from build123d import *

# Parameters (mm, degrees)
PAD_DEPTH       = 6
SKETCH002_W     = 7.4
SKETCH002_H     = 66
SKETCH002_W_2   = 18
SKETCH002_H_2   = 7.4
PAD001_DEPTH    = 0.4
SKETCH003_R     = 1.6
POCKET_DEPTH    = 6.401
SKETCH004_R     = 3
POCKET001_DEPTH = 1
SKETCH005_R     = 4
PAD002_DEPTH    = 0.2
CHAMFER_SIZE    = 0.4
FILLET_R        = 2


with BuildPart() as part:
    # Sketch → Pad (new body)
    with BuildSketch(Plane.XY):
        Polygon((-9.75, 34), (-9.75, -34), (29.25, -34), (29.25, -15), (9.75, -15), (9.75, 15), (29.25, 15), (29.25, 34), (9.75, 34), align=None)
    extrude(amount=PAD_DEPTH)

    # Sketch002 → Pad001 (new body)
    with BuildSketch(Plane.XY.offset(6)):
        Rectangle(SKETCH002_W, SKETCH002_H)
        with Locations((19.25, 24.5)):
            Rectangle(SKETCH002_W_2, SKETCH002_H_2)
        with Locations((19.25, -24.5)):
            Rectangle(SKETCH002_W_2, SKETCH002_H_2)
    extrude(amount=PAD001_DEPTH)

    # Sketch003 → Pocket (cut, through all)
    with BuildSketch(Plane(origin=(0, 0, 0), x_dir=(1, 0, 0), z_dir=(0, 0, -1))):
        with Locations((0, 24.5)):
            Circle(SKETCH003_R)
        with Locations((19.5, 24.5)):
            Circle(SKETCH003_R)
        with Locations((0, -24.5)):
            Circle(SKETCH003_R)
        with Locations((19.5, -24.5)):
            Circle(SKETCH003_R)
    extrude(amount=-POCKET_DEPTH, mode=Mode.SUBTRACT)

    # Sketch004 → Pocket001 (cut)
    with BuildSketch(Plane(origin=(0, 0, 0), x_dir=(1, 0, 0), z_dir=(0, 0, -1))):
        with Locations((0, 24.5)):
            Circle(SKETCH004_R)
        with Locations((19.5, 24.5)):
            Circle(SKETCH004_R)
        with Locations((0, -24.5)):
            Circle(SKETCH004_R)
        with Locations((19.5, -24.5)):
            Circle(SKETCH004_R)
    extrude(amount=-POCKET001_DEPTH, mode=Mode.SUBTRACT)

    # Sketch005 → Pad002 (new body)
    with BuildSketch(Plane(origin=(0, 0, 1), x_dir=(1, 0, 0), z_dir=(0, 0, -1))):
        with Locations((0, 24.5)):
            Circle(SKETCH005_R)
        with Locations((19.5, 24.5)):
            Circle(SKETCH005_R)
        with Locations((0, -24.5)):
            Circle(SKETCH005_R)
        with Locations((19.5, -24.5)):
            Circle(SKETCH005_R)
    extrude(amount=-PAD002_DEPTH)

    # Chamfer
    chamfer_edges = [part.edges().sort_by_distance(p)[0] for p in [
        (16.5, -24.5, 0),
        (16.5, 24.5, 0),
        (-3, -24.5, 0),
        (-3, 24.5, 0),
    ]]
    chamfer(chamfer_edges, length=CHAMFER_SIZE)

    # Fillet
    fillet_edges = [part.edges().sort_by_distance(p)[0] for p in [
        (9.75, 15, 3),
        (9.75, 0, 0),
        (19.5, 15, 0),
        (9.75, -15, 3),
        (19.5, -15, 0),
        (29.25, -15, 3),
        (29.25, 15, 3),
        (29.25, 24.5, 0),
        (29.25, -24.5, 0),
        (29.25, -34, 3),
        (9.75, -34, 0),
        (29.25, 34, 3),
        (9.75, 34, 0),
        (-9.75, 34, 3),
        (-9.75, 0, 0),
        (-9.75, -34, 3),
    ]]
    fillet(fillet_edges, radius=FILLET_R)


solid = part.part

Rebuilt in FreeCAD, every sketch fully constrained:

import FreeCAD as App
import Part
import Sketcher
from FreeCAD import Vector
Q = App.Units.Quantity


def edges_at(feature, points):
    """Names of the edges that pass closest to the given points."""
    edges = feature.Shape.Edges
    near = lambda p: min(range(len(edges)), key=lambda i: edges[i].distToShape(Part.Vertex(*p))[0])
    return sorted({f"Edge{near(p) + 1}" for p in points})


def add_polygon(sketch, points):
    """Adds a closed chain of lines whose ends are joined by coincident constraints."""
    first, n = sketch.GeometryCount, len(points)
    for a, b in zip(points, points[1:] + points[:1]):
        sketch.addGeometry(Part.LineSegment(App.Vector(*a, 0), App.Vector(*b, 0)), False)
    for i in range(n):
        sketch.addConstraint(Sketcher.Constraint("Coincident", first + i, 2, first + (i + 1) % n, 1))

doc = App.newDocument("Part")
body = doc.addObject("PartDesign::Body", "Body")

# Sketch on XY plane
sketch1 = body.newObject("Sketcher::SketchObject", "Sketch")
sketch1.AttachmentSupport = (doc.getObject("XY_Plane"), [""])
sketch1.MapMode = "FlatFace"
add_polygon(sketch1, [(-10, 34), (-10, -34), (29, -34), (29, -15), (10, -15), (10, 15), (29, 15), (29, 34)])  # lines 0-7
sketch1.addConstraint(Sketcher.Constraint("Vertical", 0))
sketch1.addConstraint(Sketcher.Constraint("Horizontal", 1))
sketch1.addConstraint(Sketcher.Constraint("Vertical", 2))
sketch1.addConstraint(Sketcher.Constraint("Horizontal", 3))
sketch1.addConstraint(Sketcher.Constraint("Vertical", 4))
sketch1.addConstraint(Sketcher.Constraint("Horizontal", 5))
sketch1.addConstraint(Sketcher.Constraint("Vertical", 6))
sketch1.addConstraint(Sketcher.Constraint("Horizontal", 7))
sketch1.addConstraint(Sketcher.Constraint("Symmetric", 2, 2, 5, 2, -1))
sketch1.addConstraint(Sketcher.Constraint("Equal", 2, 6))
sketch1.addConstraint(Sketcher.Constraint("DistanceX", 1, 1, 1, 2, Q("39 mm")))
sketch1.addConstraint(Sketcher.Constraint("DistanceY", 0, 2, 0, 1, Q("68 mm")))
sketch1.addConstraint(Sketcher.Constraint("DistanceY", 2, 1, 2, 2, Q("19 mm")))
sketch1.addConstraint(Sketcher.Constraint("DistanceX", 3, 2, 3, 1, Q("19.5 mm")))
sketch1.addConstraint(Sketcher.Constraint("DistanceX", 0, 2, -1, 1, Q("9.75 mm")))
pad1 = body.newObject("PartDesign::Pad", "Pad")
pad1.Profile = sketch1
pad1.Length = 6

# Sketch on XY plane
sketch2 = body.newObject("Sketcher::SketchObject", "Sketch001")
sketch2.AttachmentSupport = (doc.getObject("XY_Plane"), [""])
sketch2.MapMode = "FlatFace"
sketch2.AttachmentOffset = App.Placement(Vector(0, 0, 6), App.Rotation())
add_polygon(sketch2, [(-4, 33), (-4, -33), (4, -33), (4, 33)])  # lines 0-3
add_polygon(sketch2, [(10, 28), (10, 21), (28, 21), (28, 28)])  # lines 4-7
add_polygon(sketch2, [(10, -21), (10, -28), (28, -28), (28, -21)])  # lines 8-11
sketch2.addConstraint(Sketcher.Constraint("Vertical", 0))
sketch2.addConstraint(Sketcher.Constraint("Horizontal", 1))
sketch2.addConstraint(Sketcher.Constraint("Vertical", 2))
sketch2.addConstraint(Sketcher.Constraint("Horizontal", 3))
sketch2.addConstraint(Sketcher.Constraint("Vertical", 4))
sketch2.addConstraint(Sketcher.Constraint("Horizontal", 5))
sketch2.addConstraint(Sketcher.Constraint("Vertical", 6))
sketch2.addConstraint(Sketcher.Constraint("Horizontal", 7))
sketch2.addConstraint(Sketcher.Constraint("Vertical", 8))
sketch2.addConstraint(Sketcher.Constraint("Horizontal", 9))
sketch2.addConstraint(Sketcher.Constraint("Vertical", 10))
sketch2.addConstraint(Sketcher.Constraint("Horizontal", 11))
sketch2.addConstraint(Sketcher.Constraint("Symmetric", 0, 2, 2, 2, -1, 1))
sketch2.addConstraint(Sketcher.Constraint("Symmetric", 7, 2, 8, 2, -1))
sketch2.addConstraint(Sketcher.Constraint("Symmetric", 5, 2, 10, 2, -1))
sketch2.addConstraint(Sketcher.Constraint("Equal", 3, 4))
sketch2.addConstraint(Sketcher.Constraint("DistanceX", 5, 1, 5, 2, Q("18 mm")))
sketch2.addConstraint(Sketcher.Constraint("DistanceY", 0, 2, 0, 1, Q("66 mm")))
sketch2.addConstraint(Sketcher.Constraint("DistanceX", 1, 1, 1, 2, Q("7.4 mm")))
sketch2.addConstraint(Sketcher.Constraint("DistanceY", 8, 2, 4, 2, Q("49 mm")))
sketch2.addConstraint(Sketcher.Constraint("DistanceX", -1, 1, 4, 2, Q("10.25 mm")))
pad2 = body.newObject("PartDesign::Pad", "Pad001")
pad2.Profile = sketch2
pad2.Length = 0.4

# Sketch on XY plane
sketch3 = body.newObject("Sketcher::SketchObject", "Sketch002")
sketch3.AttachmentSupport = (doc.getObject("XY_Plane"), [""])
sketch3.MapMode = "FlatFace"
sketch3.addGeometry(Part.Circle(Vector(0, -24.5, 0), Vector(0, 0, 1), 1.6), False)
sketch3.addGeometry(Part.Circle(Vector(19.5, -24.5, 0), Vector(0, 0, 1), 1.6), False)
sketch3.addGeometry(Part.Circle(Vector(0, 24.5, 0), Vector(0, 0, 1), 1.6), False)
sketch3.addGeometry(Part.Circle(Vector(19.5, 24.5, 0), Vector(0, 0, 1), 1.6), False)
sketch3.addConstraint(Sketcher.Constraint("Equal", 0, 1))
sketch3.addConstraint(Sketcher.Constraint("Equal", 1, 2))
sketch3.addConstraint(Sketcher.Constraint("Equal", 2, 3))
sketch3.addConstraint(Sketcher.Constraint("Symmetric", 0, 3, 2, 3, -1, 1))
sketch3.addConstraint(Sketcher.Constraint("Symmetric", 1, 3, 3, 3, -1))
sketch3.addConstraint(Sketcher.Constraint("PointOnObject", 0, 3, -2))
sketch3.addConstraint(Sketcher.Constraint("Horizontal", 0, 3, 1, 3))
sketch3.addConstraint(Sketcher.Constraint("Diameter", 0, Q("3.2 mm")))
sketch3.addConstraint(Sketcher.Constraint("DistanceY", 0, 3, 2, 3, Q("49 mm")))
sketch3.addConstraint(Sketcher.Constraint("DistanceX", -1, 1, 1, 3, Q("19.5 mm")))
pocket1 = body.newObject("PartDesign::Pocket", "Pocket")
pocket1.Profile = sketch3
pocket1.Type = "ThroughAll"
pocket1.Reversed = True

# Sketch on XY plane
sketch4 = body.newObject("Sketcher::SketchObject", "Sketch003")
sketch4.AttachmentSupport = (doc.getObject("XY_Plane"), [""])
sketch4.MapMode = "FlatFace"
sketch4.addGeometry(Part.Circle(Vector(0, -24.5, 0), Vector(0, 0, 1), 3), False)
sketch4.addGeometry(Part.Circle(Vector(19.5, -24.5, 0), Vector(0, 0, 1), 3), False)
sketch4.addGeometry(Part.Circle(Vector(0, 24.5, 0), Vector(0, 0, 1), 3), False)
sketch4.addGeometry(Part.Circle(Vector(19.5, 24.5, 0), Vector(0, 0, 1), 3), False)
sketch4.addConstraint(Sketcher.Constraint("Equal", 0, 1))
sketch4.addConstraint(Sketcher.Constraint("Equal", 1, 2))
sketch4.addConstraint(Sketcher.Constraint("Equal", 2, 3))
sketch4.addConstraint(Sketcher.Constraint("Symmetric", 0, 3, 2, 3, -1, 1))
sketch4.addConstraint(Sketcher.Constraint("Symmetric", 1, 3, 3, 3, -1))
sketch4.addConstraint(Sketcher.Constraint("PointOnObject", 0, 3, -2))
sketch4.addConstraint(Sketcher.Constraint("Horizontal", 0, 3, 1, 3))
sketch4.addConstraint(Sketcher.Constraint("Diameter", 0, Q("6 mm")))
sketch4.addConstraint(Sketcher.Constraint("DistanceY", 0, 3, 2, 3, Q("49 mm")))
sketch4.addConstraint(Sketcher.Constraint("DistanceX", -1, 1, 1, 3, Q("19.5 mm")))
pocket2 = body.newObject("PartDesign::Pocket", "Pocket001")
pocket2.Profile = sketch4
pocket2.Length = 1
pocket2.Reversed = True

# Sketch on XY plane
sketch5 = body.newObject("Sketcher::SketchObject", "Sketch004")
sketch5.AttachmentSupport = (doc.getObject("XY_Plane"), [""])
sketch5.MapMode = "FlatFace"
sketch5.AttachmentOffset = App.Placement(Vector(0, 0, 1), App.Rotation())
sketch5.addGeometry(Part.Circle(Vector(0, -24.5, 0), Vector(0, 0, 1), 4), False)
sketch5.addGeometry(Part.Circle(Vector(19.5, -24.5, 0), Vector(0, 0, 1), 4), False)
sketch5.addGeometry(Part.Circle(Vector(0, 24.5, 0), Vector(0, 0, 1), 4), False)
sketch5.addGeometry(Part.Circle(Vector(19.5, 24.5, 0), Vector(0, 0, 1), 4), False)
sketch5.addConstraint(Sketcher.Constraint("Equal", 0, 1))
sketch5.addConstraint(Sketcher.Constraint("Equal", 1, 2))
sketch5.addConstraint(Sketcher.Constraint("Equal", 2, 3))
sketch5.addConstraint(Sketcher.Constraint("Symmetric", 0, 3, 2, 3, -1, 1))
sketch5.addConstraint(Sketcher.Constraint("Symmetric", 1, 3, 3, 3, -1))
sketch5.addConstraint(Sketcher.Constraint("PointOnObject", 0, 3, -2))
sketch5.addConstraint(Sketcher.Constraint("Horizontal", 0, 3, 1, 3))
sketch5.addConstraint(Sketcher.Constraint("Diameter", 0, Q("8 mm")))
sketch5.addConstraint(Sketcher.Constraint("DistanceY", 0, 3, 2, 3, Q("49 mm")))
sketch5.addConstraint(Sketcher.Constraint("DistanceX", -1, 1, 1, 3, Q("19.5 mm")))
pad3 = body.newObject("PartDesign::Pad", "Pad002")
pad3.Profile = sketch5
pad3.Length = 0.2
doc.recompute()

chamfer = body.newObject("PartDesign::Chamfer", "Chamfer")
chamfer.Base = (pad3, edges_at(pad3, [
    (16.5, -24.5, 0),
    (16.5, 24.5, 0),
    (-3, -24.5, 0),
    (-3, 24.5, 0),
]))
chamfer.Size = 0.4
doc.recompute()

fillet = body.newObject("PartDesign::Fillet", "Fillet")
fillet.Base = (chamfer, edges_at(chamfer, [
    (9.75, 15, 3),
    (9.75, 0, 0),
    (19.5, 15, 0),
    (9.75, -15, 3),
    (19.5, -15, 0),
    (29.25, -15, 3),
    (29.25, 15, 3),
    (29.25, 24.5, 0),
    (29.25, -24.5, 0),
    (29.25, -34, 3),
    (9.75, -34, 0),
    (29.25, 34, 3),
    (9.75, 34, 0),
    (-9.75, 34, 3),
    (-9.75, 0, 0),
    (-9.75, -34, 3),
]))
fillet.Radius = 2

doc.recompute()
